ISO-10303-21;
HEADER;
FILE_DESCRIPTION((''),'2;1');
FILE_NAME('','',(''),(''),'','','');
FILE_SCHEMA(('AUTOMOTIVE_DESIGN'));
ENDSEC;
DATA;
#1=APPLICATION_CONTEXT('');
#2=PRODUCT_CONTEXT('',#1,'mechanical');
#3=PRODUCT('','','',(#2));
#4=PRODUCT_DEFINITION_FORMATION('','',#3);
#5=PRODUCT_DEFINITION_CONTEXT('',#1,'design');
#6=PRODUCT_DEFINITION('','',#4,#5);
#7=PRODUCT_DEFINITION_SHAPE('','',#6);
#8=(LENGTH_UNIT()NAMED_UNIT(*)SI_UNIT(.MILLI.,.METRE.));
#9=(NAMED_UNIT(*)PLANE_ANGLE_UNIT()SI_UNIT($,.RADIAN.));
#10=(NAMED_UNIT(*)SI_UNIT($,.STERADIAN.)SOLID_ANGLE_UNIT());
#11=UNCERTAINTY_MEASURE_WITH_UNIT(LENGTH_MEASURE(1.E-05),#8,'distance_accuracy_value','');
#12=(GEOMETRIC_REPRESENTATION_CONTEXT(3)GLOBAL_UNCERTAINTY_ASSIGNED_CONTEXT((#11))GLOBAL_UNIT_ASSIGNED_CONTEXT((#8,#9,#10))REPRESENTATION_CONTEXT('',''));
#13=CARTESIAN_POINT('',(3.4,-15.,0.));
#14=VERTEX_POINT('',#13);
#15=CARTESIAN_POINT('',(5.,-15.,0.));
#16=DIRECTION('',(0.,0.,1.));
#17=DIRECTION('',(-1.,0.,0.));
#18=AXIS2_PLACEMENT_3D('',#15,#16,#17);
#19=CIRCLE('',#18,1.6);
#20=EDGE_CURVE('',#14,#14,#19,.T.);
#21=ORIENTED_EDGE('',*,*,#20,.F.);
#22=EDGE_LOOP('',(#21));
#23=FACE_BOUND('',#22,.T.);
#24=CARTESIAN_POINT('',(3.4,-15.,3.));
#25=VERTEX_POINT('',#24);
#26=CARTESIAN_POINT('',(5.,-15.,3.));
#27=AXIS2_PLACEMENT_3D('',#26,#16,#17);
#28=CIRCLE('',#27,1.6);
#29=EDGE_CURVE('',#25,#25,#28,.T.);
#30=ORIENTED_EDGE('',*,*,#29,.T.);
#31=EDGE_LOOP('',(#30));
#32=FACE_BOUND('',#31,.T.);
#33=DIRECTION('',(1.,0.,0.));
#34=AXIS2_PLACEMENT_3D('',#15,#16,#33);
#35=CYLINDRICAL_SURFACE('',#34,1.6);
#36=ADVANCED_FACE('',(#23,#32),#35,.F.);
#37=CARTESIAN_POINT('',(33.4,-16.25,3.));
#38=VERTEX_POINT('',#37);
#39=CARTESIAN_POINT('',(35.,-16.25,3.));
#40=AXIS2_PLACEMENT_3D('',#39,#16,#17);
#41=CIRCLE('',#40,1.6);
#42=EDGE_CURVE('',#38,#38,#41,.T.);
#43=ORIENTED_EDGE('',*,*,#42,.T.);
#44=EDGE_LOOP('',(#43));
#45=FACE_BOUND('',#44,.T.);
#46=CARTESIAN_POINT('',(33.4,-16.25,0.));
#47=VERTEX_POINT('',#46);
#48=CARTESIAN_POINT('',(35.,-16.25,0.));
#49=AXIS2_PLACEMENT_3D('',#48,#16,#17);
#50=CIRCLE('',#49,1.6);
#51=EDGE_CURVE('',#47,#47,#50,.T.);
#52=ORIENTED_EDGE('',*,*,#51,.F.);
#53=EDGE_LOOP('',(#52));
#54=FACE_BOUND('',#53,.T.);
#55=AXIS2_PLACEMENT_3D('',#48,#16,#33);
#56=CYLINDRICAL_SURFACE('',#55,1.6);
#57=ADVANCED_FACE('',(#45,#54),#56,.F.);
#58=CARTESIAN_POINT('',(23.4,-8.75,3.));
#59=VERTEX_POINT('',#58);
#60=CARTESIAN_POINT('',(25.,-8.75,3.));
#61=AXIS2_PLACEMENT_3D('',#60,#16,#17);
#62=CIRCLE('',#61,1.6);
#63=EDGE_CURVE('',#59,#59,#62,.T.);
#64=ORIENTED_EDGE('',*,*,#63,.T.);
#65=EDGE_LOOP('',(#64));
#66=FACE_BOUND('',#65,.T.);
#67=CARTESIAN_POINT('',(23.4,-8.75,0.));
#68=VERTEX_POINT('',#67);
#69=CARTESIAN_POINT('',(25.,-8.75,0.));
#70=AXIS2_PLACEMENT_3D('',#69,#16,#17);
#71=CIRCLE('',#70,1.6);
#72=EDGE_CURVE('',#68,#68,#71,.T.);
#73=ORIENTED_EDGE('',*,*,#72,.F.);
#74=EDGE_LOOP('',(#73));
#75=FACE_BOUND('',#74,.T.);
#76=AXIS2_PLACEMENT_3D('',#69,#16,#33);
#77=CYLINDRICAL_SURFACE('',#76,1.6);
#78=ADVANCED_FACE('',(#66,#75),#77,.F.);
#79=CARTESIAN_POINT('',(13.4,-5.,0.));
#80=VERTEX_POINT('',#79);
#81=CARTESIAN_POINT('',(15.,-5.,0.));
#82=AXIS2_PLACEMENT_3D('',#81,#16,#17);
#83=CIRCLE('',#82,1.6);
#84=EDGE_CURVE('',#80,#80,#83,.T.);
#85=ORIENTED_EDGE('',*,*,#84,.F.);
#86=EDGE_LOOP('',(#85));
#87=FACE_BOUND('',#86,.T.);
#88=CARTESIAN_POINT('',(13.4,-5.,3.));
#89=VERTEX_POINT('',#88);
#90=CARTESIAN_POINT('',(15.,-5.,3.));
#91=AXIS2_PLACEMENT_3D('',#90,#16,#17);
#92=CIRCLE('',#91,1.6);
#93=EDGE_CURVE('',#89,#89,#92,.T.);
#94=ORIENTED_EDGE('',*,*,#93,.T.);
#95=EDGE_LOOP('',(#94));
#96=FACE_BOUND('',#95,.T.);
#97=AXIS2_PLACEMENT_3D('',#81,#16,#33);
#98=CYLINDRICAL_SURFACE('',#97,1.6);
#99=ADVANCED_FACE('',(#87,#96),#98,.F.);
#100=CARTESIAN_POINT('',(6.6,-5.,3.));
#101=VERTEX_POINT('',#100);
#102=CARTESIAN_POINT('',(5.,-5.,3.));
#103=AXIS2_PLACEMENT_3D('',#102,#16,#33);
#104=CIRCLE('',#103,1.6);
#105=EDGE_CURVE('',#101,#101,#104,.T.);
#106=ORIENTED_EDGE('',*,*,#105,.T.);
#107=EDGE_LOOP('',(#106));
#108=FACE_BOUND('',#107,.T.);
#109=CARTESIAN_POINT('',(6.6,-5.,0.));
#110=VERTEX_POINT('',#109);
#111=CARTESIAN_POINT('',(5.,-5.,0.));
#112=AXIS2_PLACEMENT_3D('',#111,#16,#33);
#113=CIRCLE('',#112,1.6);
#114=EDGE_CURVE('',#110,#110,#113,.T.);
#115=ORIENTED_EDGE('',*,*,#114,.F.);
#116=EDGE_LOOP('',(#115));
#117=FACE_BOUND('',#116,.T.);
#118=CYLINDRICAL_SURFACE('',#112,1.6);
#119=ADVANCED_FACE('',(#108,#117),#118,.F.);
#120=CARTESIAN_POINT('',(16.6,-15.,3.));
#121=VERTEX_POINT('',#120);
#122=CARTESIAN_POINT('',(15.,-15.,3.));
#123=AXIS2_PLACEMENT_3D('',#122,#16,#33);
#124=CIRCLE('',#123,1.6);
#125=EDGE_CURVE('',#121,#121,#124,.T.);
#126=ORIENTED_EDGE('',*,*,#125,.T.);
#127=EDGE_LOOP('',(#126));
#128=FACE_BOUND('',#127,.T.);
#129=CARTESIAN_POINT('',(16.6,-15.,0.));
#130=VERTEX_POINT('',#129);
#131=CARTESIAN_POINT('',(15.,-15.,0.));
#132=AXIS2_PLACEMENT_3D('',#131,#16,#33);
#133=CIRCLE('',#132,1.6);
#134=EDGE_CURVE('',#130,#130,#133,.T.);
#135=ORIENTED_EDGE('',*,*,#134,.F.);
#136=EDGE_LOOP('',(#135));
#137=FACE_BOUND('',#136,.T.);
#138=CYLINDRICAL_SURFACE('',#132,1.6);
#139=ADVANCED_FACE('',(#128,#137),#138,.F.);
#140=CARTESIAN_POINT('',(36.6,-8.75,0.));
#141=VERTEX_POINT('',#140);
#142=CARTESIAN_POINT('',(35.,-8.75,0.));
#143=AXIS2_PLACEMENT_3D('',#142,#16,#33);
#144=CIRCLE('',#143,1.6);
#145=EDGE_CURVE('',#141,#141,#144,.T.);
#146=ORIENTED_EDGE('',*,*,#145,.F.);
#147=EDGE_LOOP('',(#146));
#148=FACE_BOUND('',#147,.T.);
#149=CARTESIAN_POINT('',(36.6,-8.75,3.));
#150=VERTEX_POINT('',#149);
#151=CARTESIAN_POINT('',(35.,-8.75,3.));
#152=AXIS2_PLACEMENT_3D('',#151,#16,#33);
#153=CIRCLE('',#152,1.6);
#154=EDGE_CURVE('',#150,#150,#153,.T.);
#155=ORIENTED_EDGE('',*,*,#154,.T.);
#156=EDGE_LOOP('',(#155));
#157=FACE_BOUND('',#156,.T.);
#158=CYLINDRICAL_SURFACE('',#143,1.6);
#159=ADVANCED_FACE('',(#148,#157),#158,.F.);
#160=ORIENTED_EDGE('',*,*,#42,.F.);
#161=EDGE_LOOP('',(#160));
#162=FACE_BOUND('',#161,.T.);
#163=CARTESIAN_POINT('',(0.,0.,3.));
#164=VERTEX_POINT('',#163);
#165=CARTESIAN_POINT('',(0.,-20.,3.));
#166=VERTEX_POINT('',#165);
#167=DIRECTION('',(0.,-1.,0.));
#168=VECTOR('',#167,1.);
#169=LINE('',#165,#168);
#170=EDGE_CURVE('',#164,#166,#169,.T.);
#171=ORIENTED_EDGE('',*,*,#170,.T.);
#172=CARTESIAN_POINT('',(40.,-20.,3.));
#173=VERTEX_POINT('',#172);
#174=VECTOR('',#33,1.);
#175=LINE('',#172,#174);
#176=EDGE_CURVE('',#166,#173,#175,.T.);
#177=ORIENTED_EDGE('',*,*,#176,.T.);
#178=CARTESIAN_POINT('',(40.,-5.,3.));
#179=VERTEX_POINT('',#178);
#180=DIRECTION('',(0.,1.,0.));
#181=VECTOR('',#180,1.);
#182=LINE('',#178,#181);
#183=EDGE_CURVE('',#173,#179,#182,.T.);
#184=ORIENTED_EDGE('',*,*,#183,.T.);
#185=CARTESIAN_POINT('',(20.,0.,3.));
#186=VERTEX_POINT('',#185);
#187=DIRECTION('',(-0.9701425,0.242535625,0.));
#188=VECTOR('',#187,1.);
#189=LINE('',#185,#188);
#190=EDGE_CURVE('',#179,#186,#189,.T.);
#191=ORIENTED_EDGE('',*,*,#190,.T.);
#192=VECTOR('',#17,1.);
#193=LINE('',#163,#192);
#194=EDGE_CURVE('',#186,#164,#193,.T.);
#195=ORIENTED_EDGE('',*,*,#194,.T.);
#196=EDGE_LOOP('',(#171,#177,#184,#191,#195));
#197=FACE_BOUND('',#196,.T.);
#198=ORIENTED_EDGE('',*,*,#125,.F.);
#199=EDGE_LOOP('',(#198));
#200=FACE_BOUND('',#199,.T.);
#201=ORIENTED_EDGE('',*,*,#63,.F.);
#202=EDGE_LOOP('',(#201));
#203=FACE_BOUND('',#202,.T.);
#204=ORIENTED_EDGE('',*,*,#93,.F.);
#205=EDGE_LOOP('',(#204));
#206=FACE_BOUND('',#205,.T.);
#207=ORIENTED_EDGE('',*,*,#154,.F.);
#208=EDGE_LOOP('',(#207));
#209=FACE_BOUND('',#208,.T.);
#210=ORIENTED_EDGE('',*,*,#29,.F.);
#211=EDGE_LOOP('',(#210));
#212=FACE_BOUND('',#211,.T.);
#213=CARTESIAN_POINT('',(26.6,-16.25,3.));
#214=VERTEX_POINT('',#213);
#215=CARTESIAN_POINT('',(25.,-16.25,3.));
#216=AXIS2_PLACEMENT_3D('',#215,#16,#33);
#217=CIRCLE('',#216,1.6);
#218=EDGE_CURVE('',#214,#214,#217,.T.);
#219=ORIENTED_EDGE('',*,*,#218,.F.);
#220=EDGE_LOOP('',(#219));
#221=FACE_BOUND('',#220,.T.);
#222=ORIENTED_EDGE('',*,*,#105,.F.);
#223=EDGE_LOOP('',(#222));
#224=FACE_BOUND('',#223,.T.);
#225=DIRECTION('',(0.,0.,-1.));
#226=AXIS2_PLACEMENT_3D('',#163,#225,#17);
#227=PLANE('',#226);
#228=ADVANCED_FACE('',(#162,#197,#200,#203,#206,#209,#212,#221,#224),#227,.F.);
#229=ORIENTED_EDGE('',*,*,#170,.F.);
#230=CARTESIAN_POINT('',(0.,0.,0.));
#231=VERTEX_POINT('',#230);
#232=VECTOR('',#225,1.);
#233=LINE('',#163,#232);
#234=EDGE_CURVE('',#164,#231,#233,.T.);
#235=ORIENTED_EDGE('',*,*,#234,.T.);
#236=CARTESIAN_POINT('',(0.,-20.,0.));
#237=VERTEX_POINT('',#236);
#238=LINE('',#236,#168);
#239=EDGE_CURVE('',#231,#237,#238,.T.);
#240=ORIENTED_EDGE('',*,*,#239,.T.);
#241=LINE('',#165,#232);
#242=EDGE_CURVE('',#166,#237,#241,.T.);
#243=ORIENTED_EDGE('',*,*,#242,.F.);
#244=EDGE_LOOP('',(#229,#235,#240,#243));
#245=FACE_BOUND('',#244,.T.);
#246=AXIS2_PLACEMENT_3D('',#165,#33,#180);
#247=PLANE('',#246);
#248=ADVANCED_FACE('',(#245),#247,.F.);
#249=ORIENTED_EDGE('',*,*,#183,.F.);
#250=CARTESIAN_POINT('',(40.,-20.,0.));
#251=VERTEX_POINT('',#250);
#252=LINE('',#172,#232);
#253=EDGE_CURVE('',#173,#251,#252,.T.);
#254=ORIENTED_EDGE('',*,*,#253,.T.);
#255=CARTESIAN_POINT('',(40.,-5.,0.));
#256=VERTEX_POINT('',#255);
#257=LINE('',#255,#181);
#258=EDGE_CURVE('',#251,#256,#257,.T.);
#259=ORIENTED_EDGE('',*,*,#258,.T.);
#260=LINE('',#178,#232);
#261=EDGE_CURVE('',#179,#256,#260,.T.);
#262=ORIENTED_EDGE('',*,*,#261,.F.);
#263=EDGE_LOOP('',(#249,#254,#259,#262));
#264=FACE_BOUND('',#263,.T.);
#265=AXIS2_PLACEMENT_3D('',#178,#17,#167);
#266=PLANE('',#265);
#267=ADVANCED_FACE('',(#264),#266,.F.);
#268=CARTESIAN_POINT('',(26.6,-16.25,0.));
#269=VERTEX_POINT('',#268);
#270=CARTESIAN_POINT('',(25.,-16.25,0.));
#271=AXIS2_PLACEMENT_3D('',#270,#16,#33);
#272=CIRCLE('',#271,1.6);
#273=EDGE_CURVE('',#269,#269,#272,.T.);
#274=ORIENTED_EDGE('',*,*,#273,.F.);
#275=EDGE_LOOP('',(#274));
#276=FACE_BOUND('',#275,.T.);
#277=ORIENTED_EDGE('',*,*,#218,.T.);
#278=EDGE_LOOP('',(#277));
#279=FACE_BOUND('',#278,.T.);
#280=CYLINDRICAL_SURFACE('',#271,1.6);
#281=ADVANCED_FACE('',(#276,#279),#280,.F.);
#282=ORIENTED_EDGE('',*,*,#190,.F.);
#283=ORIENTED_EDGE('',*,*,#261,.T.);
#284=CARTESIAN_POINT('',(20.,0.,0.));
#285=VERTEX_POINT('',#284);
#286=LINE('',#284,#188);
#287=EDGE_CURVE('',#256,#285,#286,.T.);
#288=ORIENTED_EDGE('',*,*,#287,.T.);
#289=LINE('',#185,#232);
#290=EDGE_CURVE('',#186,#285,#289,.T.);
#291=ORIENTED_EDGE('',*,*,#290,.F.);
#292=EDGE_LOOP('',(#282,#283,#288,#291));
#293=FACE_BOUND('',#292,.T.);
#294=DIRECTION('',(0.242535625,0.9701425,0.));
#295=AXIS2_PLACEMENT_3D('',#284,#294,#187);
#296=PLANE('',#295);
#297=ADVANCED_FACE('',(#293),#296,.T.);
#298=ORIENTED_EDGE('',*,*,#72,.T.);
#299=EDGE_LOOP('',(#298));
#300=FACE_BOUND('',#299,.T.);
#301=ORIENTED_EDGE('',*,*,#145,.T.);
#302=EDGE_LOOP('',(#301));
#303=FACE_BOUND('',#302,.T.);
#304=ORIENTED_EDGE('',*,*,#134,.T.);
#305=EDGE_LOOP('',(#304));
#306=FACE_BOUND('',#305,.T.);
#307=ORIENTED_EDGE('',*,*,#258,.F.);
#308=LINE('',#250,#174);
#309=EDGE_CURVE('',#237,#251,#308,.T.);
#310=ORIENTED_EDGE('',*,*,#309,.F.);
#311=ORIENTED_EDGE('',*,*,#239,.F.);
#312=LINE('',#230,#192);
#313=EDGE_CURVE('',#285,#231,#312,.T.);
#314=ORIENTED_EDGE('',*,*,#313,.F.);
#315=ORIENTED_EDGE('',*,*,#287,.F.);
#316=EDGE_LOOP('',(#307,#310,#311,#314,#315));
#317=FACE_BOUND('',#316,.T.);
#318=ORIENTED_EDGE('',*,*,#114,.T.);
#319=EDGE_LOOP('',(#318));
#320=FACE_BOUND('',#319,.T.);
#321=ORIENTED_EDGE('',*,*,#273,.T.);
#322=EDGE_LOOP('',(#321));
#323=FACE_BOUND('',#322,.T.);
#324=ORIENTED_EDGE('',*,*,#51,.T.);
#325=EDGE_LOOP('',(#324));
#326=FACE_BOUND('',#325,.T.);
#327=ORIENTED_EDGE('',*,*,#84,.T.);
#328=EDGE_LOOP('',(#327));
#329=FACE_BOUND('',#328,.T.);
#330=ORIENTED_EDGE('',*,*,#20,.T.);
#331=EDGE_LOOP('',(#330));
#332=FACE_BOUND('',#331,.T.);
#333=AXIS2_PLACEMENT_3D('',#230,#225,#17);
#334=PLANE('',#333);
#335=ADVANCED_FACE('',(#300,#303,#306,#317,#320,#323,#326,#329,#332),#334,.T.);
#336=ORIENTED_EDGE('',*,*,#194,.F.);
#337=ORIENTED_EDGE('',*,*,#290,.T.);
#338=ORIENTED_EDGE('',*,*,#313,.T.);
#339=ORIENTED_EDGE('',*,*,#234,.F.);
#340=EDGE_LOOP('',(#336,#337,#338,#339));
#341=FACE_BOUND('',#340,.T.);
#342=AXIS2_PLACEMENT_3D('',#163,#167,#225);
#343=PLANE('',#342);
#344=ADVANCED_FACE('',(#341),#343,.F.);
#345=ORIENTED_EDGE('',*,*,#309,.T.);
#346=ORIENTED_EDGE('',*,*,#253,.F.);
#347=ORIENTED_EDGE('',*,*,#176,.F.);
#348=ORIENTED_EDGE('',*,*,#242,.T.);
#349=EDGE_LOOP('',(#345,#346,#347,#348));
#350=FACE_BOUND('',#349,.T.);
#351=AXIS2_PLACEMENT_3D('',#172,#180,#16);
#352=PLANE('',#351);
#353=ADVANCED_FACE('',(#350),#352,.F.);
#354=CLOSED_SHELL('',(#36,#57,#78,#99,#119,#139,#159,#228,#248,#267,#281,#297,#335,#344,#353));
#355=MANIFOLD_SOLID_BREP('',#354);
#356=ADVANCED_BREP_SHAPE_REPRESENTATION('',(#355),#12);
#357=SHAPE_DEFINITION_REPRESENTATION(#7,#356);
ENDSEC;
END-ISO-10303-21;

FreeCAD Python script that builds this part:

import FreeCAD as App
import Part
import Sketcher
from FreeCAD import Vector


def add_polygon(sketch, points):
    """Adds a closed chain of lines whose ends are joined by coincident constraints."""
    first, n = sketch.GeometryCount, len(points)
    for a, b in zip(points, points[1:] + points[:1]):
        sketch.addGeometry(Part.LineSegment(App.Vector(*a, 0), App.Vector(*b, 0)), False)
    for i in range(n):
        sketch.addConstraint(Sketcher.Constraint("Coincident", first + i, 2, first + (i + 1) % n, 1))

doc = App.newDocument("Part")
params = doc.addObject("Spreadsheet::Sheet", "Params")
for row, (alias, value) in enumerate([
    ("sketch1_width", "20 mm"),
    ("sketch1_height", "15 mm"),
    ("pad1_length", "3 mm"),
    ("sketch2_diameter", "3.2 mm"),
    ("sketch3_width", "20 mm"),
    ("sketch3_height", "5 mm"),
    ("pad2_length", "3 mm"),
], start=1):
    params.set(f"A{row}", alias)
    params.set(f"B{row}", "=" + value)
    params.setAlias(f"B{row}", alias)

body = doc.addObject("PartDesign::Body", "Body")

# Sketch on XY plane
sketch1 = body.newObject("Sketcher::SketchObject", "Sketch")
sketch1.AttachmentSupport = (doc.getObject("XY_Plane"), [""])
sketch1.MapMode = "FlatFace"
add_polygon(sketch1, [(20, 0), (0, 0), (0, -20), (40, -20), (40, -5), (20, -5)])  # lines 0-5
sketch1.addConstraint([
    Sketcher.Constraint("Horizontal", 0),
    Sketcher.Constraint("Vertical", 1),
    Sketcher.Constraint("Horizontal", 2),
    Sketcher.Constraint("Vertical", 3),
    Sketcher.Constraint("Horizontal", 4),
    Sketcher.Constraint("Vertical", 5),
    Sketcher.Constraint("Coincident", 0, 2, -1, 1),
    Sketcher.Constraint("Equal", 0, 4),
    Sketcher.Constraint("Equal", 4, 1),
    Sketcher.Constraint("DistanceX", 0, 2, 0, 1, 20.0),
    Sketcher.Constraint("DistanceY", 3, 1, 3, 2, 15.0),
])
sketch1.setExpression("Constraints[15]", "Params.sketch1_width")
sketch1.setExpression("Constraints[16]", "Params.sketch1_height")
pad1 = body.newObject("PartDesign::Pad", "Pad")
pad1.Profile = sketch1
pad1.setExpression("Length", "Params.pad1_length")

# Sketch on XY plane
sketch2 = body.newObject("Sketcher::SketchObject", "Sketch001")
sketch2.AttachmentSupport = (doc.getObject("XY_Plane"), [""])
sketch2.MapMode = "FlatFace"
sketch2.AttachmentOffset = App.Placement(Vector(0, 0, 3), App.Rotation())
sketch2.addGeometry([
    Part.Circle(Vector(5, -5, 0), Vector(0, 0, 1), 1.6),  # 0
    Part.Circle(Vector(35, -8.8, 0), Vector(0, 0, 1), 1.6),  # 1
    Part.Circle(Vector(5, -15, 0), Vector(0, 0, 1), 1.6),  # 2
    Part.Circle(Vector(15, -5, 0), Vector(0, 0, 1), 1.6),  # 3
    Part.Circle(Vector(15, -15, 0), Vector(0, 0, 1), 1.6),  # 4
    Part.Circle(Vector(35, -16.2, 0), Vector(0, 0, 1), 1.6),  # 5
    Part.Circle(Vector(25, -16.2, 0), Vector(0, 0, 1), 1.6),  # 6
    Part.Circle(Vector(25, -8.8, 0), Vector(0, 0, 1), 1.6),  # 7
], False)
sketch2.addConstraint([
    Sketcher.Constraint("Equal", 0, 1),
    Sketcher.Constraint("Equal", 1, 2),
    Sketcher.Constraint("Equal", 2, 3),
    Sketcher.Constraint("Equal", 3, 4),
    Sketcher.Constraint("Equal", 4, 5),
    Sketcher.Constraint("Equal", 5, 6),
    Sketcher.Constraint("Equal", 6, 7),
    Sketcher.Constraint("Horizontal", 0, 3, 3, 3),
    Sketcher.Constraint("Horizontal", 2, 3, 4, 3),
    Sketcher.Constraint("Horizontal", 5, 3, 6, 3),
    Sketcher.Constraint("Horizontal", 1, 3, 7, 3),
    Sketcher.Constraint("Vertical", 0, 3, 2, 3),
    Sketcher.Constraint("Vertical", 3, 3, 4, 3),
    Sketcher.Constraint("Vertical", 1, 3, 5, 3),
    Sketcher.Constraint("Vertical", 6, 3, 7, 3),
    Sketcher.Constraint("Diameter", 0, 3.2),
    Sketcher.Constraint("DistanceX", -1, 1, 0, 3, 5.0),
    Sketcher.Constraint("DistanceY", 0, 3, -1, 1, 5.0),
    Sketcher.Constraint("DistanceX", -1, 1, 1, 3, 35.0),
    Sketcher.Constraint("DistanceY", 2, 3, -1, 1, 15.0),
    Sketcher.Constraint("DistanceX", -1, 1, 3, 3, 15.0),
    Sketcher.Constraint("DistanceX", -1, 1, 6, 3, 25.0),
    Sketcher.Constraint("DistanceY", 5, 3, 1, 3, 7.5),
    Sketcher.Constraint("DistanceY", 1, 3, -1, 1, 8.75),
])
sketch2.setExpression("Constraints[15]", "Params.sketch2_diameter")
pocket1 = body.newObject("PartDesign::Pocket", "Pocket")
pocket1.Profile = sketch2
pocket1.Type = "ThroughAll"

# Sketch on XY plane
sketch3 = body.newObject("Sketcher::SketchObject", "Sketch002")
sketch3.AttachmentSupport = (doc.getObject("XY_Plane"), [""])
sketch3.MapMode = "FlatFace"
sketch3.AttachmentOffset = App.Placement(Vector(0, 0, 3), App.Rotation())
add_polygon(sketch3, [(40, -5), (20, 0), (20, -5)])  # lines 0-2
sketch3.addConstraint([
    Sketcher.Constraint("Vertical", 1),
    Sketcher.Constraint("Horizontal", 2),
    Sketcher.Constraint("PointOnObject", 0, 2, -1),
    Sketcher.Constraint("DistanceX", 2, 1, 2, 2, 20.0),
    Sketcher.Constraint("DistanceY", 1, 2, 1, 1, 5.0),
    Sketcher.Constraint("DistanceX", -1, 1, 0, 2, 20.0),
])
sketch3.setExpression("Constraints[6]", "Params.sketch3_width")
sketch3.setExpression("Constraints[7]", "Params.sketch3_height")
pad2 = body.newObject("PartDesign::Pad", "Pad001")
pad2.Profile = sketch3
pad2.setExpression("Length", "Params.pad2_length")
pad2.Reversed = True

doc.recompute()
